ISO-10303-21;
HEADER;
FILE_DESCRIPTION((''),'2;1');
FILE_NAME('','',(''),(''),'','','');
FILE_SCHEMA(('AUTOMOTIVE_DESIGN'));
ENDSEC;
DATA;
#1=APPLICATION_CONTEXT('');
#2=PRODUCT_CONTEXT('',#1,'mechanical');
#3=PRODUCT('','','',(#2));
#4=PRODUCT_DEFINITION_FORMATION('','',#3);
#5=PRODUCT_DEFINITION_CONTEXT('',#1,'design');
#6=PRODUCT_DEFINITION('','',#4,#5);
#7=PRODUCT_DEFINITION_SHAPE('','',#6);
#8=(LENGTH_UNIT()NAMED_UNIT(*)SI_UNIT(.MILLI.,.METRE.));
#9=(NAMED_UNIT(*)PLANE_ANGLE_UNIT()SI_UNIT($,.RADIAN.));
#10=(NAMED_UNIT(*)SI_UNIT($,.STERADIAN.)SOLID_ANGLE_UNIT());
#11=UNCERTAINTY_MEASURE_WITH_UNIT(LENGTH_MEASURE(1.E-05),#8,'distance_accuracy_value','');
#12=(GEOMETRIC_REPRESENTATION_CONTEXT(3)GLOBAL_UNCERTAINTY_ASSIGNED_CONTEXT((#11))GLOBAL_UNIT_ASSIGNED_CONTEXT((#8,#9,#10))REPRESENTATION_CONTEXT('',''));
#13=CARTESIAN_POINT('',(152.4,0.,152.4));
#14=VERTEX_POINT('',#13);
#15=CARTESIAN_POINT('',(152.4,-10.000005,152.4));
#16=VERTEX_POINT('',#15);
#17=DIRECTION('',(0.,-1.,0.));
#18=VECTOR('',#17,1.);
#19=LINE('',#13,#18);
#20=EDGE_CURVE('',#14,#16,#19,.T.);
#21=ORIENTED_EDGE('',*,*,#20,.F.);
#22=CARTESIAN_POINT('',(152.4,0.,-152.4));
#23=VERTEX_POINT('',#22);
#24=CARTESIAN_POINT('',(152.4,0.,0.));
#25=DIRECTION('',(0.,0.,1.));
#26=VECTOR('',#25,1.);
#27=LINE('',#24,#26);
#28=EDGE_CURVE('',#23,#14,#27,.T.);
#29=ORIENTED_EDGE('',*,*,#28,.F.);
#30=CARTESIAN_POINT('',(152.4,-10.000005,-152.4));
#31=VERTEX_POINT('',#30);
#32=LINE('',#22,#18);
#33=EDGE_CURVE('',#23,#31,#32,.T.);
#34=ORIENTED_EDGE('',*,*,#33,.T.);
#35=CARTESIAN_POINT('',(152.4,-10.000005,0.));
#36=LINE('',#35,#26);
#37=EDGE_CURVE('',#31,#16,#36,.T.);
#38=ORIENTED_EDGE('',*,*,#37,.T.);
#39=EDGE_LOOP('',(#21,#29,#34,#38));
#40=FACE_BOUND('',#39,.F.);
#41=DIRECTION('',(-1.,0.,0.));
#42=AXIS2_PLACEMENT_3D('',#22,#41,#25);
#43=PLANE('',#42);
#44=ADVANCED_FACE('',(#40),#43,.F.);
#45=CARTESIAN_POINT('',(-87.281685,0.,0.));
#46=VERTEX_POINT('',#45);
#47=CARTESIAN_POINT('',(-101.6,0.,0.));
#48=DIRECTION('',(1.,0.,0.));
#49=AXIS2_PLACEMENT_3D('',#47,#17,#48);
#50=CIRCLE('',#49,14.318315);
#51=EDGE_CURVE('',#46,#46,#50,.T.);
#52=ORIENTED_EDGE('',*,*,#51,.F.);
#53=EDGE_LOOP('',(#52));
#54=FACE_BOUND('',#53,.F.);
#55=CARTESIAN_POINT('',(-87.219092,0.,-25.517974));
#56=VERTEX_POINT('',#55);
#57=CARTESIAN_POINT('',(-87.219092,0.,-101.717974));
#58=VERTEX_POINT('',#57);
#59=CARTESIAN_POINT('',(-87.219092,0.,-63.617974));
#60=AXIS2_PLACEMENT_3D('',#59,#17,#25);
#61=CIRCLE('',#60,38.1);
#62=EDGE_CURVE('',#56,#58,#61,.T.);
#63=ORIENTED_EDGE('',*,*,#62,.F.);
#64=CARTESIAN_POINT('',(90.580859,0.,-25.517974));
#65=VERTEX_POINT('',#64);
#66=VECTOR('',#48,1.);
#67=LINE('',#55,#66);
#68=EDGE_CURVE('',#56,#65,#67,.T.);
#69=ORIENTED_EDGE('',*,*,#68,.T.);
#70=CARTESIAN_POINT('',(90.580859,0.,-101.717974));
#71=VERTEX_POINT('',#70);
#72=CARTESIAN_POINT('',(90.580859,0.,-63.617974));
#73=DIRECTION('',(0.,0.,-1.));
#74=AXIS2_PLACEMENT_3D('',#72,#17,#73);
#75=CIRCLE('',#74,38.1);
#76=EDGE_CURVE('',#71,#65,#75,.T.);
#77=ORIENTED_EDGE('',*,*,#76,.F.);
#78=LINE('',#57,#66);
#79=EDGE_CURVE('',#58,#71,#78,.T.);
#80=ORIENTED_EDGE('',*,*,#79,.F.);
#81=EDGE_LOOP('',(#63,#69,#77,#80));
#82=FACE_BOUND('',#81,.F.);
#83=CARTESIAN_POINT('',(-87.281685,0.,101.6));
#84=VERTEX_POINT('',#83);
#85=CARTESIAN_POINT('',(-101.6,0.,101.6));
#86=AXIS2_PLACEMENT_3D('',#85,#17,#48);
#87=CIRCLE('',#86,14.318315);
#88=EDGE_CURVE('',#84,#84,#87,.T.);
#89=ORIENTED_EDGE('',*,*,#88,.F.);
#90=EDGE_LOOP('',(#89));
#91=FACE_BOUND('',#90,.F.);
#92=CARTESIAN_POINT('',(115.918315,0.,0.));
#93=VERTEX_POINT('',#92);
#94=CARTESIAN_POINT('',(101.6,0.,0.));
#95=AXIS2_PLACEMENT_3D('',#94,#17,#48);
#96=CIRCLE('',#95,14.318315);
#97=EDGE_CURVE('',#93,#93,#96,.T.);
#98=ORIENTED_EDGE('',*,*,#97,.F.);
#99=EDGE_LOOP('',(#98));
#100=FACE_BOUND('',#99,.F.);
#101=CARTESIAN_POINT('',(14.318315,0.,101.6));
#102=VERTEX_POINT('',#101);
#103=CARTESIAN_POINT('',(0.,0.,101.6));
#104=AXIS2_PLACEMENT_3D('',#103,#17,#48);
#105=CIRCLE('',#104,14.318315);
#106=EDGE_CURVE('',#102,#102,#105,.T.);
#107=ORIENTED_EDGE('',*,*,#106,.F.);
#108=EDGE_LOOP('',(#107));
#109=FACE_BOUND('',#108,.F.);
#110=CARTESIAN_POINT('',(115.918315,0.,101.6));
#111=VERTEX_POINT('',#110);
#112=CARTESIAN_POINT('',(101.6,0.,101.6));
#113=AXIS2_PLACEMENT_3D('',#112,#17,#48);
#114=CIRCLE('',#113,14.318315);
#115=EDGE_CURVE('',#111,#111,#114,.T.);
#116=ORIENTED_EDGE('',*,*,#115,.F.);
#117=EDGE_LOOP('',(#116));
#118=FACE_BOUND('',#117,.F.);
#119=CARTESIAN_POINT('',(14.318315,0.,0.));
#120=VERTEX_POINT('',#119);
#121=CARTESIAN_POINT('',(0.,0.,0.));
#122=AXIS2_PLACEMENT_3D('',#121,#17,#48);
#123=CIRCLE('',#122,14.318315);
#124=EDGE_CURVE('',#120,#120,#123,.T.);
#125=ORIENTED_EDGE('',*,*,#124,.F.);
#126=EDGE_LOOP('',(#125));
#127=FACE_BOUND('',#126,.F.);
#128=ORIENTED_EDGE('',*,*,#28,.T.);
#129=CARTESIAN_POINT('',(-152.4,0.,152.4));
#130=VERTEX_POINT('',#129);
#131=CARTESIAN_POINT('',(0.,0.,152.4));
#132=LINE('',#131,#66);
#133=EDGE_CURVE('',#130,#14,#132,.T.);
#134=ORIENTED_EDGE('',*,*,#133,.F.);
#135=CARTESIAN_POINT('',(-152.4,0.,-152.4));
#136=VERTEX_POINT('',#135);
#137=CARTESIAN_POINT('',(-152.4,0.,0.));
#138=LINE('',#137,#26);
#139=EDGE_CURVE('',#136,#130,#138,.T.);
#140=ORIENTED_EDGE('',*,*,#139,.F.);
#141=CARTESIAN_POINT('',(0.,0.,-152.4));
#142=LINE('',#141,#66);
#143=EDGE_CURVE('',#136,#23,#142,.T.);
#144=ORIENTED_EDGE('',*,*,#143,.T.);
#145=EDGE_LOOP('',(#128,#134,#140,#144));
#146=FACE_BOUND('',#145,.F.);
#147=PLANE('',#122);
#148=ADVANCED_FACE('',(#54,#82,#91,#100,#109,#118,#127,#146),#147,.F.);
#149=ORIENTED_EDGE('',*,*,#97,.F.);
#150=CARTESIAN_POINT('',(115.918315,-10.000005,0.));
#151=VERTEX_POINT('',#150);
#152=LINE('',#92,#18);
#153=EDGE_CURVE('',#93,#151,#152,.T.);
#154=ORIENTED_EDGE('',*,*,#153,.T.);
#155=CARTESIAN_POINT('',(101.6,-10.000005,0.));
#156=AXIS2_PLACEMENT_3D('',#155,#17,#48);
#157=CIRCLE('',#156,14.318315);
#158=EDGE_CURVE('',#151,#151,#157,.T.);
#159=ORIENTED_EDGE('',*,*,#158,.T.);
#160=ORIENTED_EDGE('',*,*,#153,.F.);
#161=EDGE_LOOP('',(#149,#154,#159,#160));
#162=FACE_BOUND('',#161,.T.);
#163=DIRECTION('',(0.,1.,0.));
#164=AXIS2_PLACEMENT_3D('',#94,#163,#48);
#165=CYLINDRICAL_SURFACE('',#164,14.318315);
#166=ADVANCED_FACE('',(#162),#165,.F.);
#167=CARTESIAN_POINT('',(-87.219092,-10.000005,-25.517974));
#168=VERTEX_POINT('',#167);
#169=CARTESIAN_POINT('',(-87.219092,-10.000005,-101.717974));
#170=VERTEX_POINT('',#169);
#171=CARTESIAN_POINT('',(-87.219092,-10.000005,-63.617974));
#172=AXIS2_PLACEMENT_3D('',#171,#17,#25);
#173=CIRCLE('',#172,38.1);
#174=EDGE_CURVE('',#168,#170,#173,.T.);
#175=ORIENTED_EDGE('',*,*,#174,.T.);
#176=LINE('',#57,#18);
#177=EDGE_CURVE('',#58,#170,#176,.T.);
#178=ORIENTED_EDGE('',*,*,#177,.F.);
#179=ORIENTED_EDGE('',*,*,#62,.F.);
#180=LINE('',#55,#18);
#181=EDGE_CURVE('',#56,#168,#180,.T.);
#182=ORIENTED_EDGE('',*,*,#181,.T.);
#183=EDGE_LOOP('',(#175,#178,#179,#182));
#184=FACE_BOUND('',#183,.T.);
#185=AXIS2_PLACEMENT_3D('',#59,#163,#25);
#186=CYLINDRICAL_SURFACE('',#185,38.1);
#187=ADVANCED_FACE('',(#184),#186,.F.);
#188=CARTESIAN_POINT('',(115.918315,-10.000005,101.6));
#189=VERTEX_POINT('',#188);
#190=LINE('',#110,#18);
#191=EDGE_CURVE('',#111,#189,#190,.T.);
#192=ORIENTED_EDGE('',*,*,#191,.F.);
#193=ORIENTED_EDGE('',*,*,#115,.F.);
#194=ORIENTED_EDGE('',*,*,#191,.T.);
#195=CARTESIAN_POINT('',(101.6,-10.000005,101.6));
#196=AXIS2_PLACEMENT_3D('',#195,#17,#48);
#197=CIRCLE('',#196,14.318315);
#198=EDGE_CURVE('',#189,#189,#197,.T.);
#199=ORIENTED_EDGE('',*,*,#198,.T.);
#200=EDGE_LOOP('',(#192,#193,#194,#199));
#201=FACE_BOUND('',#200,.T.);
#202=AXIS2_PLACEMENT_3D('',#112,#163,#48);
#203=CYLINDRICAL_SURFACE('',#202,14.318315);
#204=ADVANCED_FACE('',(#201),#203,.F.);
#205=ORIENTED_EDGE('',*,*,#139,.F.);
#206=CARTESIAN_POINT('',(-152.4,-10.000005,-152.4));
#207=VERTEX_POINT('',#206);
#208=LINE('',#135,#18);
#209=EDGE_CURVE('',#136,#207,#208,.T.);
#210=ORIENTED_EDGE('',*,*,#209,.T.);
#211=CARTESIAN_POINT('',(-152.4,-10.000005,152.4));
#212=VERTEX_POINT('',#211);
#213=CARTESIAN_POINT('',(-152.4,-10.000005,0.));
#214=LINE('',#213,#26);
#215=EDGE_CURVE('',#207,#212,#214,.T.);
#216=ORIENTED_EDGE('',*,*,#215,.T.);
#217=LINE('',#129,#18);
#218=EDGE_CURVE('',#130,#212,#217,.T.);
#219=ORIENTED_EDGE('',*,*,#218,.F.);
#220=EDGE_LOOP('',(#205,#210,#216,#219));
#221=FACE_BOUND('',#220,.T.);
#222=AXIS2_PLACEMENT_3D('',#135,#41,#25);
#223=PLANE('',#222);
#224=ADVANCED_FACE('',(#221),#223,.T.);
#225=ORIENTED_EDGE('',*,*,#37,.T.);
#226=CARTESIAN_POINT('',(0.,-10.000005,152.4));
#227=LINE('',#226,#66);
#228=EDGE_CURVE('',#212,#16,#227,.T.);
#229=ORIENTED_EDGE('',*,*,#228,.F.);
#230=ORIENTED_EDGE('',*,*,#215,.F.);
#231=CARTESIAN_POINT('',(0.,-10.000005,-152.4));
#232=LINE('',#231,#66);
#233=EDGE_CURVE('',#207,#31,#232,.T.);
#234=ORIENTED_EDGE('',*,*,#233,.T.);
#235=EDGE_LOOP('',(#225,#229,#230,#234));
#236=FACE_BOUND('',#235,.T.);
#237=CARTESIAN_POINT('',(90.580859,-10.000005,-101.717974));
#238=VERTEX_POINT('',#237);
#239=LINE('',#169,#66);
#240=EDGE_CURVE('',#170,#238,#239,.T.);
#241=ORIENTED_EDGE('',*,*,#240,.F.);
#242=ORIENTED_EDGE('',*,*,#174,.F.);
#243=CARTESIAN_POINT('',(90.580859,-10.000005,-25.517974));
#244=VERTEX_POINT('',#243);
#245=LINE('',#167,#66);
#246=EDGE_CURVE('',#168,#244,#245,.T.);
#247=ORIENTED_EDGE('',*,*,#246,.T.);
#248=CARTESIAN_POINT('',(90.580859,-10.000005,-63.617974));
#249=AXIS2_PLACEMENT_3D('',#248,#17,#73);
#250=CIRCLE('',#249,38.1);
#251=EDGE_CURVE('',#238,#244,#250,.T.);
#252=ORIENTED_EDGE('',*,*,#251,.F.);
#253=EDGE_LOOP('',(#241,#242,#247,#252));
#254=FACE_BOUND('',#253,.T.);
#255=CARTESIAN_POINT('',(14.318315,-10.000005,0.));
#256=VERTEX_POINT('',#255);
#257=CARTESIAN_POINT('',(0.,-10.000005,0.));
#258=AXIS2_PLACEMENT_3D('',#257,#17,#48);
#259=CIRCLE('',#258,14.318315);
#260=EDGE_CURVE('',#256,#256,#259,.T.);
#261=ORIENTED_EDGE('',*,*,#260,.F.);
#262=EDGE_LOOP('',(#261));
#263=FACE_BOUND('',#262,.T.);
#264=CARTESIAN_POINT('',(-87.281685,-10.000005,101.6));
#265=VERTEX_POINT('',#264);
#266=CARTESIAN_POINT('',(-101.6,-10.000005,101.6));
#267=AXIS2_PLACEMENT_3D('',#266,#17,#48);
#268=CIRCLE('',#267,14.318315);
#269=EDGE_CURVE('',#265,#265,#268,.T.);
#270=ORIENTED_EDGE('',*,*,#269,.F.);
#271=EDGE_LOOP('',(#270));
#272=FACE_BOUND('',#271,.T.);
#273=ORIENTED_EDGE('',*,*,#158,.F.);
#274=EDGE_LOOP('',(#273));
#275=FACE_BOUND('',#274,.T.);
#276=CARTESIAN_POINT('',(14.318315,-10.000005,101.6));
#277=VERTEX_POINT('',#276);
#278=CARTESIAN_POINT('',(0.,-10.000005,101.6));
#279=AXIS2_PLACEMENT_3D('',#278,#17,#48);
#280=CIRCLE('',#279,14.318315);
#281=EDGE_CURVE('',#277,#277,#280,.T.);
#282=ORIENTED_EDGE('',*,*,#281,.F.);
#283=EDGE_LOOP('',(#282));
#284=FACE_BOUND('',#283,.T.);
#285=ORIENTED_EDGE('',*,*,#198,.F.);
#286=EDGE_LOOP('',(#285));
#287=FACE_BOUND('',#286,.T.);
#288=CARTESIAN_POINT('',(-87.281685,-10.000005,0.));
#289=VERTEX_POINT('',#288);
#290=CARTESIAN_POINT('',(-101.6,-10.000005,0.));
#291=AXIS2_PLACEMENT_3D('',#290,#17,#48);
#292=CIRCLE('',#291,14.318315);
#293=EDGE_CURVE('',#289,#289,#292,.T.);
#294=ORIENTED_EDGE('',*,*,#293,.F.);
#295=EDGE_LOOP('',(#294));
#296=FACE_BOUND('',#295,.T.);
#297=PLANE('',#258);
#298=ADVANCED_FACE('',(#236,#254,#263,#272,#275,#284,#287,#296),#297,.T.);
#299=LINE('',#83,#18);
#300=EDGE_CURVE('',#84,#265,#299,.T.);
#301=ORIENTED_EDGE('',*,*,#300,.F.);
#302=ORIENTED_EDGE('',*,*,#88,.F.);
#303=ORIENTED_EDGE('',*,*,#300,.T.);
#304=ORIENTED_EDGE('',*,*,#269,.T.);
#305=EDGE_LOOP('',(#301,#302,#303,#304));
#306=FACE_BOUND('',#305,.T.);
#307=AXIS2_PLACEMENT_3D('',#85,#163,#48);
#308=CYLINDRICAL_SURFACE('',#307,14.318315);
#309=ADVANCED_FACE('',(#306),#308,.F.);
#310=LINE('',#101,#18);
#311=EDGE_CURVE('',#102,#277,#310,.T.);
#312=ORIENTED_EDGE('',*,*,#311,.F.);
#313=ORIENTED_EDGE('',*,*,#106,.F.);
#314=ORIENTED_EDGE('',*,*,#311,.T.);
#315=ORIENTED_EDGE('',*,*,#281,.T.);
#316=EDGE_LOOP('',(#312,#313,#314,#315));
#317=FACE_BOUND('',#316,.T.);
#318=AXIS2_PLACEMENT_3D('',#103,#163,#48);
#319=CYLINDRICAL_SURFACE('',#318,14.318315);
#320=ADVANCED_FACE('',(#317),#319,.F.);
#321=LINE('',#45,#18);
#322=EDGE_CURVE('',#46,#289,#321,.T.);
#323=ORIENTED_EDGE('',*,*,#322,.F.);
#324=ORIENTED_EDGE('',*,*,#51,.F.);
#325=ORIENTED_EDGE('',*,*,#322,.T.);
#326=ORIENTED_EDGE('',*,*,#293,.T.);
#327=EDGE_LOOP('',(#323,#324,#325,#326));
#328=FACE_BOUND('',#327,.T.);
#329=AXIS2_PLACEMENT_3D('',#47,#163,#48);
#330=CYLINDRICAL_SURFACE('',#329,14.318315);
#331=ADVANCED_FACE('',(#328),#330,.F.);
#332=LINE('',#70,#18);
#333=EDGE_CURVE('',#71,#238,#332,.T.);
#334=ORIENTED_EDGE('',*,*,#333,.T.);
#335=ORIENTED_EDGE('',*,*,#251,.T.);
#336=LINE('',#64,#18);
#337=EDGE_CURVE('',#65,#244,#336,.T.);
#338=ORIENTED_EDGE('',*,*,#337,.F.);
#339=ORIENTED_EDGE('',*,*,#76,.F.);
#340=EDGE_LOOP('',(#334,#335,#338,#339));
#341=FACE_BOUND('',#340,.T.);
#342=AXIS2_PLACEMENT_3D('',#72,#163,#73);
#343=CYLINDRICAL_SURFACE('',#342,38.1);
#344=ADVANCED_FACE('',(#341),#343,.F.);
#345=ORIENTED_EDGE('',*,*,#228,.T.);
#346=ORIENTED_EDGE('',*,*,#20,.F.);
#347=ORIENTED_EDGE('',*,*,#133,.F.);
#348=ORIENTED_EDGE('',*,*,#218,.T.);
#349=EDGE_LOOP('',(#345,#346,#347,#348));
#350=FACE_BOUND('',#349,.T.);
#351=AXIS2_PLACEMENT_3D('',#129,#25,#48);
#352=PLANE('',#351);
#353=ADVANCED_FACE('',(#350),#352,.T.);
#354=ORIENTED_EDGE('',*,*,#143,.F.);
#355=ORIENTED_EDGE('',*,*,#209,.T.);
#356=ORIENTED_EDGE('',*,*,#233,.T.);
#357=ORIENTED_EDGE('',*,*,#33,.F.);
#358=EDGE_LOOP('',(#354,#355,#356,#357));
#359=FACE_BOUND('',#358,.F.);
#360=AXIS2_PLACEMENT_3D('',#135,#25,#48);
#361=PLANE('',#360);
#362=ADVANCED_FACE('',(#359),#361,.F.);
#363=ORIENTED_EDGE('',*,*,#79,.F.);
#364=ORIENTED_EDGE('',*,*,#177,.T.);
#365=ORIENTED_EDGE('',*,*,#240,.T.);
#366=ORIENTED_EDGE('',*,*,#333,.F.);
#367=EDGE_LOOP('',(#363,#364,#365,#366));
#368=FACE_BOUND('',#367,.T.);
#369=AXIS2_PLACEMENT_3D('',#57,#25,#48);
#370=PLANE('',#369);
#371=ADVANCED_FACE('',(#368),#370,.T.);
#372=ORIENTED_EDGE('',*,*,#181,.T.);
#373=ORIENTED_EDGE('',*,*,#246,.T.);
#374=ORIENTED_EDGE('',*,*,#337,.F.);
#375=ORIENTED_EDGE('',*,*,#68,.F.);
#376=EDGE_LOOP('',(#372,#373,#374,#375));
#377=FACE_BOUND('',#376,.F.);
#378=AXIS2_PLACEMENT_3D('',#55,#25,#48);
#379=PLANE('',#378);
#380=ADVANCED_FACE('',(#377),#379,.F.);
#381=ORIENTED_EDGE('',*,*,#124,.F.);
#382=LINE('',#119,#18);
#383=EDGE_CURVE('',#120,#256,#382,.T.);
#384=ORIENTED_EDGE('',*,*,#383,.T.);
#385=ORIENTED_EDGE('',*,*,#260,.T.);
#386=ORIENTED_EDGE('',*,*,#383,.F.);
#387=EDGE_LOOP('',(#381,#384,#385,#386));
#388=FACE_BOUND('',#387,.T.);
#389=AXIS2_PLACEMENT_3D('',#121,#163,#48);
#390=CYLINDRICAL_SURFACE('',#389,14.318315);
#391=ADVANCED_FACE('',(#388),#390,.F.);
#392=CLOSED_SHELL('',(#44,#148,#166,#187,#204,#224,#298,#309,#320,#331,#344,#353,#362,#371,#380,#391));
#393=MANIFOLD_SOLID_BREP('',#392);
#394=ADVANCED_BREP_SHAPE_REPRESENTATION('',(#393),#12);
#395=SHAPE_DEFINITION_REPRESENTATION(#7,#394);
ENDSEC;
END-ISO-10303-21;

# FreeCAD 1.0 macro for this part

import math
import FreeCAD as App
import Part
import Sketcher

V = App.Vector
Q = App.Units.Quantity


def add_polygon(sketch, points):
    """Adds a closed chain of lines whose ends are joined by coincident constraints."""
    first, n = sketch.GeometryCount, len(points)
    for a, b in zip(points, points[1:] + points[:1]):
        sketch.addGeometry(Part.LineSegment(App.Vector(*a, 0), App.Vector(*b, 0)), False)
    for i in range(n):
        sketch.addConstraint(Sketcher.Constraint("Coincident", first + i, 2, first + (i + 1) % n, 1))

doc = App.newDocument("Part")
body = doc.addObject("PartDesign::Body", "Body")

# Sketch on XZ plane
sketch1 = doc.addObject("Sketcher::SketchObject", "Sketch")
body.addObject(sketch1)
sketch1.AttachmentSupport = (doc.XZ_Plane, [""])
sketch1.MapMode = "FlatFace"
add_polygon(sketch1, [(-152, 152), (-152, -152), (152, -152), (152, 152)])  # lines 0-3
sketch1.addGeometry(Part.ArcOfCircle(Part.Circle(V(-87, -64, 0), V(0, 0, 1), 38), math.radians(90), math.radians(270)), False)  # 4
sketch1.addGeometry(Part.LineSegment(V(-87, -26, 0), V(91, -26, 0)), False)  # 5
sketch1.addGeometry(Part.ArcOfCircle(Part.Circle(V(91, -64, 0), V(0, 0, 1), 38), math.radians(-90), math.radians(90)), False)  # 6
sketch1.addGeometry(Part.LineSegment(V(91, -102, 0), V(-87, -102, 0)), False)  # 7
sketch1.addGeometry(Part.Circle(V(-102, 0, 0), V(0, 0, 1), 14), False)  # 8
sketch1.addGeometry(Part.Circle(V(0, 0, 0), V(0, 0, 1), 14), False)  # 9
sketch1.addGeometry(Part.Circle(V(102, 0, 0), V(0, 0, 1), 14), False)  # 10
sketch1.addGeometry(Part.Circle(V(-102, 102, 0), V(0, 0, 1), 14), False)  # 11
sketch1.addGeometry(Part.Circle(V(0, 102, 0), V(0, 0, 1), 14), False)  # 12
sketch1.addGeometry(Part.Circle(V(102, 102, 0), V(0, 0, 1), 14), False)  # 13
sketch1.addConstraint(Sketcher.Constraint("Tangent", 4, 1, 5, 1))
sketch1.addConstraint(Sketcher.Constraint("Tangent", 5, 2, 6, 2))
sketch1.addConstraint(Sketcher.Constraint("Tangent", 6, 1, 7, 1))
sketch1.addConstraint(Sketcher.Constraint("Tangent", 7, 2, 4, 2))
sketch1.addConstraint(Sketcher.Constraint("Vertical", 0))
sketch1.addConstraint(Sketcher.Constraint("Horizontal", 1))
sketch1.addConstraint(Sketcher.Constraint("Vertical", 2))
sketch1.addConstraint(Sketcher.Constraint("Horizontal", 3))
sketch1.addConstraint(Sketcher.Constraint("Horizontal", 5))
sketch1.addConstraint(Sketcher.Constraint("Horizontal", 7))
sketch1.addConstraint(Sketcher.Constraint("Coincident", 9, 3, -1, 1))
sketch1.addConstraint(Sketcher.Constraint("Equal", 8, 9))
sketch1.addConstraint(Sketcher.Constraint("Equal", 9, 10))
sketch1.addConstraint(Sketcher.Constraint("Equal", 10, 11))
sketch1.addConstraint(Sketcher.Constraint("Equal", 11, 12))
sketch1.addConstraint(Sketcher.Constraint("Equal", 12, 13))
sketch1.addConstraint(Sketcher.Constraint("Symmetric", 8, 3, 10, 3, -1, 1))
sketch1.addConstraint(Sketcher.Constraint("Symmetric", 0, 2, 2, 2, -1, 1))
sketch1.addConstraint(Sketcher.Constraint("Symmetric", 11, 3, 13, 3, -2))
sketch1.addConstraint(Sketcher.Constraint("PointOnObject", 8, 3, -1))
sketch1.addConstraint(Sketcher.Constraint("PointOnObject", 12, 3, -2))
sketch1.addConstraint(Sketcher.Constraint("Horizontal", 11, 3, 12, 3))
sketch1.addConstraint(Sketcher.Constraint("Vertical", 8, 3, 11, 3))
sketch1.addConstraint(Sketcher.Constraint("Equal", 3, 0))
sketch1.addConstraint(Sketcher.Constraint("Radius", 4, Q("1.5 in")))
sketch1.addConstraint(Sketcher.Constraint("DistanceX", 1, 1, 1, 2, Q("12 in")))
sketch1.addConstraint(Sketcher.Constraint("DistanceX", 8, 3, -1, 1, Q("4 in")))
sketch1.addConstraint(Sketcher.Constraint("DistanceY", -1, 1, 11, 3, Q("4 in")))
sketch1.addConstraint(Sketcher.Constraint("Diameter", 8, 28.63663))
sketch1.addConstraint(Sketcher.Constraint("DistanceX", 5, 1, 5, 2, 177.799951))
sketch1.addConstraint(Sketcher.Constraint("DistanceX", -1, 1, 6, 3, 90.580859))
sketch1.addConstraint(Sketcher.Constraint("DistanceY", 4, 3, -1, 1, 63.617974))
pad1 = doc.addObject("PartDesign::Pad", "Pad")
body.addObject(pad1)
pad1.Profile = sketch1
pad1.Length = 10.000005

doc.recompute()
